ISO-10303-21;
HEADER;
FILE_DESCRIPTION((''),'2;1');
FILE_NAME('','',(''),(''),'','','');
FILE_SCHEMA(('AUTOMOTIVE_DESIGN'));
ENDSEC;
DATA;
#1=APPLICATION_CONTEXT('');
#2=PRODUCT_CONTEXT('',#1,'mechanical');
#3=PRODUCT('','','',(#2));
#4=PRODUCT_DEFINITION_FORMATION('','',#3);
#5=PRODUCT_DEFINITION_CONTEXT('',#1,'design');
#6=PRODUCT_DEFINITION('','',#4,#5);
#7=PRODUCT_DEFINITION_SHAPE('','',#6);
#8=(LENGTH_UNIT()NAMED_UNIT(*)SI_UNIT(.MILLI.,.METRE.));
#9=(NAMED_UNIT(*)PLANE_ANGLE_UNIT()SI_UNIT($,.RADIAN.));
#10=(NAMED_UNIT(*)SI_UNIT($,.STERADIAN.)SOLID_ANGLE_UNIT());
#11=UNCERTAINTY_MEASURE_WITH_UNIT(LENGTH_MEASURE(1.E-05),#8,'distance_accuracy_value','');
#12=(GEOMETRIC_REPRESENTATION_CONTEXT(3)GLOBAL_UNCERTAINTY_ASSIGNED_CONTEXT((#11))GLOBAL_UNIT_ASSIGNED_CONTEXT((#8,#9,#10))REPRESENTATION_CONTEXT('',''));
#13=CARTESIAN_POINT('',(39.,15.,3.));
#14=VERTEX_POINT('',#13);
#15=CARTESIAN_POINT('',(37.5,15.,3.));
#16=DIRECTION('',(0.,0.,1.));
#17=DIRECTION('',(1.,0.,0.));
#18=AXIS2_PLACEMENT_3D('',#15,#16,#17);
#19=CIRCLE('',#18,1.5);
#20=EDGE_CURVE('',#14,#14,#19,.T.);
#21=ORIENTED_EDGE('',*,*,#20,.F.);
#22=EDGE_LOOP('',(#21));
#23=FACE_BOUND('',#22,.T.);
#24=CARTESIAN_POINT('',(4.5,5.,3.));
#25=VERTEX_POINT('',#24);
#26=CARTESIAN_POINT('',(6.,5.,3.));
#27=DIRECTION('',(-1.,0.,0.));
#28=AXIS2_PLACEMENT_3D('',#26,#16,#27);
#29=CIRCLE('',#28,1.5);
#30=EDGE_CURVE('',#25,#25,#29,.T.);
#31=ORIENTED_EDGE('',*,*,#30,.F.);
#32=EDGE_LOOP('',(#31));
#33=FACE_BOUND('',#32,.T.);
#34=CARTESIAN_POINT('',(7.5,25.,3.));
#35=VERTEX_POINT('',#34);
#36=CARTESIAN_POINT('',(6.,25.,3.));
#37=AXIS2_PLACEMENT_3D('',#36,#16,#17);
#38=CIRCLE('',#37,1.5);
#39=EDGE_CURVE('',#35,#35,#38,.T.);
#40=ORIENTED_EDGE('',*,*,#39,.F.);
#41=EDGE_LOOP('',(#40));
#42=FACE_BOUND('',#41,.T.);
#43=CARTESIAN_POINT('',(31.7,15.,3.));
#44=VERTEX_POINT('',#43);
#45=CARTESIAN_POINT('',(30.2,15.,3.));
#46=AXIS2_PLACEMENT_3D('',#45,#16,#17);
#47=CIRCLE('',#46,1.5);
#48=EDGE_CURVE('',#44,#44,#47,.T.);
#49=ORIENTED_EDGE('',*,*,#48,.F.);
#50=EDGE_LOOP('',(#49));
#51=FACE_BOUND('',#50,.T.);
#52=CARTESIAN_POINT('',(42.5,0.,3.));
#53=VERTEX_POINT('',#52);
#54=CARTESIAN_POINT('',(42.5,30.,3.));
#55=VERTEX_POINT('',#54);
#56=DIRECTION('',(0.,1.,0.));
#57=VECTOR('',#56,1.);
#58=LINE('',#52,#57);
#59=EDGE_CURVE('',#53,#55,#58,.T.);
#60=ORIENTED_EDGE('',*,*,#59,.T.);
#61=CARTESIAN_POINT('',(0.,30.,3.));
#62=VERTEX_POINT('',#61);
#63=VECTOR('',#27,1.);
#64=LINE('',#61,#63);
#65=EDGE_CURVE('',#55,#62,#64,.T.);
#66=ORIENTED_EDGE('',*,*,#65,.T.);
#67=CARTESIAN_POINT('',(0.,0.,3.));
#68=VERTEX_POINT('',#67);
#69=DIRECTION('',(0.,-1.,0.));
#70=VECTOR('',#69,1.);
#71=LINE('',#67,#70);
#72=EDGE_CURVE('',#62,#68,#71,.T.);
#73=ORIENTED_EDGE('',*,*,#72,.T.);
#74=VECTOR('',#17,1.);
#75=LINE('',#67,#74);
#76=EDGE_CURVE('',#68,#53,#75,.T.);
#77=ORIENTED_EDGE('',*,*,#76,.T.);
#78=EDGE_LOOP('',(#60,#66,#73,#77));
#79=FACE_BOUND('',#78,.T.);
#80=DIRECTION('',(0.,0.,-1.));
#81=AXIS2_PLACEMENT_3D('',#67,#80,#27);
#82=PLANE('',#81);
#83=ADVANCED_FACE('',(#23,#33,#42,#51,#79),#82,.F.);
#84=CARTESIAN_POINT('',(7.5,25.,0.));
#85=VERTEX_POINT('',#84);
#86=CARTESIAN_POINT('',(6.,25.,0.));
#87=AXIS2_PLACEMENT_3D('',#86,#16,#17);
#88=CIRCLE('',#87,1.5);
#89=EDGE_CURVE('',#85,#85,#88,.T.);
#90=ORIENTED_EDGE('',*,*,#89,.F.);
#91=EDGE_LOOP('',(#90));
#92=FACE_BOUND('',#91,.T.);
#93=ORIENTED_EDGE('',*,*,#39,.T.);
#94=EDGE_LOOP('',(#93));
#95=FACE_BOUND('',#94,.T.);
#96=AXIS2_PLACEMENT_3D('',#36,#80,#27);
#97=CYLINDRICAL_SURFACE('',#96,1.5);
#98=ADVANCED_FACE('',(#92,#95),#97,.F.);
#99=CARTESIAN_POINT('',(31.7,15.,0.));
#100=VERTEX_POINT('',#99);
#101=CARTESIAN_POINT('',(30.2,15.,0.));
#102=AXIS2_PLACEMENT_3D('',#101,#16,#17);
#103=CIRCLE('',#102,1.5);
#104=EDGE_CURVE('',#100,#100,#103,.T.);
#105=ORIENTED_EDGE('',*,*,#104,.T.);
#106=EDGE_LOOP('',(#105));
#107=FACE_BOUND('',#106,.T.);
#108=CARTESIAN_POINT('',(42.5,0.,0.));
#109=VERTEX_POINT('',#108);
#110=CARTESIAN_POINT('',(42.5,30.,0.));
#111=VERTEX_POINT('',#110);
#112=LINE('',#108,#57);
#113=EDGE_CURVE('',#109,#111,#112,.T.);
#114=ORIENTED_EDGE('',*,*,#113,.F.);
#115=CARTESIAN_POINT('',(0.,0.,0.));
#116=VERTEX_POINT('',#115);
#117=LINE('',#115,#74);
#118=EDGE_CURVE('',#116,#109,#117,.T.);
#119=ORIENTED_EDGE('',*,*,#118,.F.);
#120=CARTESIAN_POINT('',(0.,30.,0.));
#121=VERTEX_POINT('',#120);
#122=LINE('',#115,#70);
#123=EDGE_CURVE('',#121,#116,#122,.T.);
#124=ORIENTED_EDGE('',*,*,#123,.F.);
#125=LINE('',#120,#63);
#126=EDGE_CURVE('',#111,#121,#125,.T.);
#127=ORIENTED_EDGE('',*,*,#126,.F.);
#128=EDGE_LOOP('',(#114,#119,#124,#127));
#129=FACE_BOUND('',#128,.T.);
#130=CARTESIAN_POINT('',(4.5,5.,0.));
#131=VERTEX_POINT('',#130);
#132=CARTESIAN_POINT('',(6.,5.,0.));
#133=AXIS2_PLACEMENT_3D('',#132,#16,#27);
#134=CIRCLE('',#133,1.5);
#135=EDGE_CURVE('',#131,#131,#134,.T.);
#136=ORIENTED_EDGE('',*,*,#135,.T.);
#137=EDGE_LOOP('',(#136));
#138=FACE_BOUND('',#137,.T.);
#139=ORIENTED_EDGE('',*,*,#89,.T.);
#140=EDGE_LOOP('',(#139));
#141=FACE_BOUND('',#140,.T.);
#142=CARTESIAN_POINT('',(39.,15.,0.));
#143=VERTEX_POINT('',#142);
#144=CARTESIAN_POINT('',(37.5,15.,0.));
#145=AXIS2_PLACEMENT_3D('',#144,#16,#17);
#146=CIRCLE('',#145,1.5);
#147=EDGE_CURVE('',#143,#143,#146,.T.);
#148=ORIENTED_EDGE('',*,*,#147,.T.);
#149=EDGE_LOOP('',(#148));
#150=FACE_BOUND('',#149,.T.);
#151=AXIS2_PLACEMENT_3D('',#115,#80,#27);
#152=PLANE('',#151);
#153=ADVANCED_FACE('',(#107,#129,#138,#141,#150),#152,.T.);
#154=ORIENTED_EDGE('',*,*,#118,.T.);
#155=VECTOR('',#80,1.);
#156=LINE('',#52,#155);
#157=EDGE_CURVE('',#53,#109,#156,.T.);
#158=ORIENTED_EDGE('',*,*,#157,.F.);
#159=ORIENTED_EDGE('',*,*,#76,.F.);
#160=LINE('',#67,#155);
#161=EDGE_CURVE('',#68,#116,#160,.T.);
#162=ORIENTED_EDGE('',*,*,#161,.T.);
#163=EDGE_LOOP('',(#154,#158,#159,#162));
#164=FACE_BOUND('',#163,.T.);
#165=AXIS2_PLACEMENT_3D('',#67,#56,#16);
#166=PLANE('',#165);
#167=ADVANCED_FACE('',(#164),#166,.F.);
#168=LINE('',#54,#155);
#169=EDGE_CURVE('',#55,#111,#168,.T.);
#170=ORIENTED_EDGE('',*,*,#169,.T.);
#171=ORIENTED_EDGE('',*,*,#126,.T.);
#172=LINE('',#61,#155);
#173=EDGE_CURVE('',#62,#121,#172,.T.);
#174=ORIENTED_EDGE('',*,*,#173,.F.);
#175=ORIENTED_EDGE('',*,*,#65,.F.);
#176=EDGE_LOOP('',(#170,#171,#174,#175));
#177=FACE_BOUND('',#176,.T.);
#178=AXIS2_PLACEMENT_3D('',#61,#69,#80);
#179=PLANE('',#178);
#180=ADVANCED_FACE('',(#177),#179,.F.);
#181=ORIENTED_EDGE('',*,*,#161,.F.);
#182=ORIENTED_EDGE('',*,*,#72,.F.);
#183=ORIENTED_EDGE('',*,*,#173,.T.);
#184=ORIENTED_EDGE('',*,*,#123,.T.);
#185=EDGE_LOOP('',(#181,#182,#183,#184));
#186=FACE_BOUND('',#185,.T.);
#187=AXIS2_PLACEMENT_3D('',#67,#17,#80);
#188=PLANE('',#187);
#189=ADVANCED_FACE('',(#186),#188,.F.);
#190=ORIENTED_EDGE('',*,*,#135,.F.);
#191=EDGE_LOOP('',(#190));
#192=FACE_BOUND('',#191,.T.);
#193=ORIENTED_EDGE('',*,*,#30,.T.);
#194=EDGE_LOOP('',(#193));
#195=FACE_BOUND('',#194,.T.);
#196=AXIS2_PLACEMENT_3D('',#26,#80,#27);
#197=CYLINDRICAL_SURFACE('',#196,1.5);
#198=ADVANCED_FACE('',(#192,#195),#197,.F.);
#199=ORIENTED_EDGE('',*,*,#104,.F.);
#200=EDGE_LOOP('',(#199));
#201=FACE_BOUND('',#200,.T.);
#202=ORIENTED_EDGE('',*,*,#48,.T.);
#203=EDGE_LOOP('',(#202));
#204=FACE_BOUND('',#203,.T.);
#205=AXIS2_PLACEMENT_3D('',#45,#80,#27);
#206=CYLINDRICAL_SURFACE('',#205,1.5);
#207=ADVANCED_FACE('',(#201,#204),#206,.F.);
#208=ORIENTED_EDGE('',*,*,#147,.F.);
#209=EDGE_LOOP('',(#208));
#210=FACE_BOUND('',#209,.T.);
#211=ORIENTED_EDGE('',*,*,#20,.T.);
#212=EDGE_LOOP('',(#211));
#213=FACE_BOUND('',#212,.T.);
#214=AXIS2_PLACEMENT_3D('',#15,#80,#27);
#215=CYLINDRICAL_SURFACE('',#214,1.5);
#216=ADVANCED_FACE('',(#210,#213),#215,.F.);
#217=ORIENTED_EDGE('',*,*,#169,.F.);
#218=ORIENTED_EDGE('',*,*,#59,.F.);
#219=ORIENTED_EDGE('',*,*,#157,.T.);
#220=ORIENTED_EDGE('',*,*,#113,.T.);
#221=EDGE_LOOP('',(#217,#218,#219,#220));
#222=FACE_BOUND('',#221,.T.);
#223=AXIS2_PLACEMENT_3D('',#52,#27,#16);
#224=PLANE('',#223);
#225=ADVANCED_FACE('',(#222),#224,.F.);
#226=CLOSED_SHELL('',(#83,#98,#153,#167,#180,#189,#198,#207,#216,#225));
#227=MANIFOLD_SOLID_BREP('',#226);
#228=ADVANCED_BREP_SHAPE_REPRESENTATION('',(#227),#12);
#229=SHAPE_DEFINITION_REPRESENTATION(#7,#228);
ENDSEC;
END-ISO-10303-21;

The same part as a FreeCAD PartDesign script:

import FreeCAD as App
import Part
import Sketcher


def add_polygon(sketch, points):
    """Adds a closed chain of lines whose ends are joined by coincident constraints."""
    first, n = sketch.GeometryCount, len(points)
    for a, b in zip(points, points[1:] + points[:1]):
        sketch.addGeometry(Part.LineSegment(App.Vector(*a, 0), App.Vector(*b, 0)), False)
    for i in range(n):
        sketch.addConstraint(Sketcher.Constraint("Coincident", first + i, 2, first + (i + 1) % n, 1))

doc = App.newDocument("Part")
body = doc.addObject("PartDesign::Body", "Body")

# Sketch on XY plane
sketch1 = doc.addObject("Sketcher::SketchObject", "Sketch")
body.addObject(sketch1)
sketch1.AttachmentSupport = (doc.XY_Plane, [""])
sketch1.MapMode = "FlatFace"
add_polygon(sketch1, [(0, 30), (0, 0), (42.5, 0), (42.5, 30)])  # lines 0-3
sketch1.addGeometry(Part.Circle(App.Vector(6, 5, 0), App.Vector(0, 0, 1), 1.5), False)  # 4
sketch1.addGeometry(Part.Circle(App.Vector(6, 25, 0), App.Vector(0, 0, 1), 1.5), False)  # 5
sketch1.addGeometry(Part.Circle(App.Vector(30.2, 15, 0), App.Vector(0, 0, 1), 1.5), False)  # 6
sketch1.addGeometry(Part.Circle(App.Vector(37.5, 15, 0), App.Vector(0, 0, 1), 1.5), False)  # 7
sketch1.addConstraint(Sketcher.Constraint("Vertical", 0))
sketch1.addConstraint(Sketcher.Constraint("Horizontal", 1))
sketch1.addConstraint(Sketcher.Constraint("Vertical", 2))
sketch1.addConstraint(Sketcher.Constraint("Horizontal", 3))
sketch1.addConstraint(Sketcher.Constraint("Coincident", 0, 2, -1, 1))
sketch1.addConstraint(Sketcher.Constraint("Equal", 4, 5))
sketch1.addConstraint(Sketcher.Constraint("Equal", 5, 6))
sketch1.addConstraint(Sketcher.Constraint("Equal", 6, 7))
sketch1.addConstraint(Sketcher.Constraint("Horizontal", 6, 3, 7, 3))
sketch1.addConstraint(Sketcher.Constraint("Vertical", 4, 3, 5, 3))
sketch1.addConstraint(Sketcher.Constraint("Diameter", 4, 3.0))
sketch1.addConstraint(Sketcher.Constraint("DistanceY", 0, 2, 0, 1, 30.0))
sketch1.addConstraint(Sketcher.Constraint("DistanceX", 1, 1, 1, 2, 42.5))
sketch1.addConstraint(Sketcher.Constraint("DistanceX", -1, 1, 4, 3, 6.0))
sketch1.addConstraint(Sketcher.Constraint("DistanceY", -1, 1, 4, 3, 5.0))
sketch1.addConstraint(Sketcher.Constraint("DistanceY", -1, 1, 5, 3, 25.0))
sketch1.addConstraint(Sketcher.Constraint("DistanceY", -1, 1, 6, 3, 15.0))
sketch1.addConstraint(Sketcher.Constraint("DistanceX", 7, 3, 1, 2, 5.0))
sketch1.addConstraint(Sketcher.Constraint("DistanceX", -1, 1, 6, 3, 30.2))
pad1 = doc.addObject("PartDesign::Pad", "Pad")
body.addObject(pad1)
pad1.Profile = sketch1
pad1.Length = 3

doc.recompute()
